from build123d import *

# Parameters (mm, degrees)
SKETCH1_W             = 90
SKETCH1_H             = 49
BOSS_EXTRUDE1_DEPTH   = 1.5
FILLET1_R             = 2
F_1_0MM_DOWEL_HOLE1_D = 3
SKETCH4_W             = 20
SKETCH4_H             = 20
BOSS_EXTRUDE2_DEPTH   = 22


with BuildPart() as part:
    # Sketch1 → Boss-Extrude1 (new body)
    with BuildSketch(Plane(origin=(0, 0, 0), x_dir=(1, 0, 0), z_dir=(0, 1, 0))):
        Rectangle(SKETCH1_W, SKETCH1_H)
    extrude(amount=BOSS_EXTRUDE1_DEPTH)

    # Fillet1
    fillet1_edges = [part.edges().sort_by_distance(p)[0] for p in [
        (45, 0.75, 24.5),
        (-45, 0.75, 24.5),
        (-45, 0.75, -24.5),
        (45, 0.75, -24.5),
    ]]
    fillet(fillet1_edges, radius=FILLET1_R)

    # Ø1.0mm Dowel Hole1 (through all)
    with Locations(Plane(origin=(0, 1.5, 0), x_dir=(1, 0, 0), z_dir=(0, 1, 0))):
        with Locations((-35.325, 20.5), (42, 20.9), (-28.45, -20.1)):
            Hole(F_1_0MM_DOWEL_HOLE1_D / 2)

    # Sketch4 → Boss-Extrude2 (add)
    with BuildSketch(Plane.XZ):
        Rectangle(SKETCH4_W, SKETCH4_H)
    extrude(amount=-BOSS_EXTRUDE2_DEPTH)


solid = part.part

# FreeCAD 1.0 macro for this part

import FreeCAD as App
import Part
import Sketcher
from FreeCAD import Vector
Q = App.Units.Quantity


def edges_at(feature, points):
    """Names of the edges that pass closest to the given points."""
    edges = feature.Shape.Edges
    near = lambda p: min(range(len(edges)), key=lambda i: edges[i].distToShape(Part.Vertex(*p))[0])
    return sorted({f"Edge{near(p) + 1}" for p in points})

doc = App.newDocument("Part")
params = doc.addObject("Spreadsheet::Sheet", "Params")
for row, (alias, value) in enumerate([
    ("sketch1_width", "90 mm"),
    ("sketch1_height", "49 mm"),
    ("pad1_length", "1.5 mm"),
    ("fillet_radius", "2 mm"),
    ("sketch2_diameter", "3 mm"),
    ("hole_diameter", "3 mm"),
    ("sketch3_width", "20 mm"),
    ("pad2_length", "22 mm"),
], start=1):
    params.set(f"A{row}", alias)
    params.set(f"B{row}", "=" + value)
    params.setAlias(f"B{row}", alias)

body = doc.addObject("PartDesign::Body", "Body")

# Sketch on XZ plane
sketch1 = body.newObject("Sketcher::SketchObject", "Sketch")
sketch1.AttachmentSupport = (doc.getObject("XZ_Plane"), [""])
sketch1.MapMode = "FlatFace"
sketch1.addGeometry(Part.LineSegment(Vector(-45, -24, 0), Vector(-45, 24, 0)), False)
sketch1.addGeometry(Part.LineSegment(Vector(-45, 24, 0), Vector(45, 24, 0)), False)
sketch1.addGeometry(Part.LineSegment(Vector(45, 24, 0), Vector(45, -24, 0)), False)
sketch1.addGeometry(Part.LineSegment(Vector(45, -24, 0), Vector(-45, -24, 0)), False)
sketch1.addConstraint(Sketcher.Constraint("Coincident", 0, 2, 1, 1))
sketch1.addConstraint(Sketcher.Constraint("Coincident", 1, 2, 2, 1))
sketch1.addConstraint(Sketcher.Constraint("Coincident", 2, 2, 3, 1))
sketch1.addConstraint(Sketcher.Constraint("Coincident", 3, 2, 0, 1))
sketch1.addConstraint(Sketcher.Constraint("Vertical", 0))
sketch1.addConstraint(Sketcher.Constraint("Horizontal", 1))
sketch1.addConstraint(Sketcher.Constraint("Vertical", 2))
sketch1.addConstraint(Sketcher.Constraint("Horizontal", 3))
sketch1.addConstraint(Sketcher.Constraint("Symmetric", 0, 2, 2, 2, -1, 1))
sketch1.addConstraint(Sketcher.Constraint("DistanceX", 1, 1, 1, 2, Q("90 mm")))
sketch1.addConstraint(Sketcher.Constraint("DistanceY", 0, 1, 0, 2, Q("49 mm")))
sketch1.setExpression("Constraints[9]", "Params.sketch1_width")
sketch1.setExpression("Constraints[10]", "Params.sketch1_height")
pad1 = body.newObject("PartDesign::Pad", "Pad")
pad1.Profile = sketch1
pad1.setExpression("Length", "Params.pad1_length")
pad1.Reversed = True
doc.recompute()

fillet = body.newObject("PartDesign::Fillet", "Fillet")
fillet.Base = (pad1, edges_at(pad1, [
    (45, 0.75, 24.5),
    (-45, 0.75, 24.5),
    (-45, 0.75, -24.5),
    (45, 0.75, -24.5),
]))
fillet.setExpression("Radius", "Params.fillet_radius")

# Sketch on XZ plane
sketch2 = body.newObject("Sketcher::SketchObject", "Sketch001")
sketch2.AttachmentSupport = (doc.getObject("XZ_Plane"), [""])
sketch2.MapMode = "FlatFace"
sketch2.AttachmentOffset = App.Placement(Vector(0, 0, -1.5), App.Rotation())
sketch2.addGeometry(Part.Circle(Vector(-35.3, -20.5, 0), Vector(0, 0, 1), 1.5), False)
sketch2.addGeometry(Part.Circle(Vector(42, -20.9, 0), Vector(0, 0, 1), 1.5), False)
sketch2.addGeometry(Part.Circle(Vector(-28.4, 20.1, 0), Vector(0, 0, 1), 1.5), False)
sketch2.addConstraint(Sketcher.Constraint("Equal", 0, 1))
sketch2.addConstraint(Sketcher.Constraint("Equal", 1, 2))
sketch2.addConstraint(Sketcher.Constraint("Diameter", 0, Q("3 mm")))
sketch2.addConstraint(Sketcher.Constraint("DistanceX", -1, 1, 1, 3, Q("42 mm")))
sketch2.addConstraint(Sketcher.Constraint("DistanceY", 1, 3, 2, 3, Q("41 mm")))
sketch2.addConstraint(Sketcher.Constraint("DistanceY", 0, 3, -1, 1, Q("20.5 mm")))
sketch2.addConstraint(Sketcher.Constraint("DistanceY", 1, 3, -1, 1, Q("20.9 mm")))
sketch2.addConstraint(Sketcher.Constraint("DistanceX", 2, 3, -1, 1, Q("28.45 mm")))
sketch2.addConstraint(Sketcher.Constraint("DistanceX", 0, 3, -1, 1, Q("35.325 mm")))
sketch2.setExpression("Constraints[2]", "Params.sketch2_diameter")
doc.recompute()
hole = body.newObject("PartDesign::Hole", "Hole")
hole.Profile = sketch2
hole.ThreadType = "None"
hole.setExpression("Diameter", "Params.hole_diameter")
hole.DepthType = "ThroughAll"
hole.Reversed = True

# Sketch on XZ plane
sketch3 = body.newObject("Sketcher::SketchObject", "Sketch002")
sketch3.AttachmentSupport = (doc.getObject("XZ_Plane"), [""])
sketch3.MapMode = "FlatFace"
sketch3.addGeometry(Part.LineSegment(Vector(-10, 10, 0), Vector(-10, -10, 0)), False)
sketch3.addGeometry(Part.LineSegment(Vector(-10, -10, 0), Vector(10, -10, 0)), False)
sketch3.addGeometry(Part.LineSegment(Vector(10, -10, 0), Vector(10, 10, 0)), False)
sketch3.addGeometry(Part.LineSegment(Vector(10, 10, 0), Vector(-10, 10, 0)), False)
sketch3.addConstraint(Sketcher.Constraint("Coincident", 0, 2, 1, 1))
sketch3.addConstraint(Sketcher.Constraint("Coincident", 1, 2, 2, 1))
sketch3.addConstraint(Sketcher.Constraint("Coincident", 2, 2, 3, 1))
sketch3.addConstraint(Sketcher.Constraint("Coincident", 3, 2, 0, 1))
sketch3.addConstraint(Sketcher.Constraint("Vertical", 0))
sketch3.addConstraint(Sketcher.Constraint("Horizontal", 1))
sketch3.addConstraint(Sketcher.Constraint("Vertical", 2))
sketch3.addConstraint(Sketcher.Constraint("Horizontal", 3))
sketch3.addConstraint(Sketcher.Constraint("Symmetric", 0, 2, 2, 2, -1, 1))
sketch3.addConstraint(Sketcher.Constraint("Equal", 3, 0))
sketch3.addConstraint(Sketcher.Constraint("DistanceX", 1, 1, 1, 2, Q("20 mm")))
sketch3.setExpression("Constraints[10]", "Params.sketch3_width")
pad2 = body.newObject("PartDesign::Pad", "Pad001")
pad2.Profile = sketch3
pad2.setExpression("Length", "Params.pad2_length")
pad2.Reversed = True

doc.recompute()
